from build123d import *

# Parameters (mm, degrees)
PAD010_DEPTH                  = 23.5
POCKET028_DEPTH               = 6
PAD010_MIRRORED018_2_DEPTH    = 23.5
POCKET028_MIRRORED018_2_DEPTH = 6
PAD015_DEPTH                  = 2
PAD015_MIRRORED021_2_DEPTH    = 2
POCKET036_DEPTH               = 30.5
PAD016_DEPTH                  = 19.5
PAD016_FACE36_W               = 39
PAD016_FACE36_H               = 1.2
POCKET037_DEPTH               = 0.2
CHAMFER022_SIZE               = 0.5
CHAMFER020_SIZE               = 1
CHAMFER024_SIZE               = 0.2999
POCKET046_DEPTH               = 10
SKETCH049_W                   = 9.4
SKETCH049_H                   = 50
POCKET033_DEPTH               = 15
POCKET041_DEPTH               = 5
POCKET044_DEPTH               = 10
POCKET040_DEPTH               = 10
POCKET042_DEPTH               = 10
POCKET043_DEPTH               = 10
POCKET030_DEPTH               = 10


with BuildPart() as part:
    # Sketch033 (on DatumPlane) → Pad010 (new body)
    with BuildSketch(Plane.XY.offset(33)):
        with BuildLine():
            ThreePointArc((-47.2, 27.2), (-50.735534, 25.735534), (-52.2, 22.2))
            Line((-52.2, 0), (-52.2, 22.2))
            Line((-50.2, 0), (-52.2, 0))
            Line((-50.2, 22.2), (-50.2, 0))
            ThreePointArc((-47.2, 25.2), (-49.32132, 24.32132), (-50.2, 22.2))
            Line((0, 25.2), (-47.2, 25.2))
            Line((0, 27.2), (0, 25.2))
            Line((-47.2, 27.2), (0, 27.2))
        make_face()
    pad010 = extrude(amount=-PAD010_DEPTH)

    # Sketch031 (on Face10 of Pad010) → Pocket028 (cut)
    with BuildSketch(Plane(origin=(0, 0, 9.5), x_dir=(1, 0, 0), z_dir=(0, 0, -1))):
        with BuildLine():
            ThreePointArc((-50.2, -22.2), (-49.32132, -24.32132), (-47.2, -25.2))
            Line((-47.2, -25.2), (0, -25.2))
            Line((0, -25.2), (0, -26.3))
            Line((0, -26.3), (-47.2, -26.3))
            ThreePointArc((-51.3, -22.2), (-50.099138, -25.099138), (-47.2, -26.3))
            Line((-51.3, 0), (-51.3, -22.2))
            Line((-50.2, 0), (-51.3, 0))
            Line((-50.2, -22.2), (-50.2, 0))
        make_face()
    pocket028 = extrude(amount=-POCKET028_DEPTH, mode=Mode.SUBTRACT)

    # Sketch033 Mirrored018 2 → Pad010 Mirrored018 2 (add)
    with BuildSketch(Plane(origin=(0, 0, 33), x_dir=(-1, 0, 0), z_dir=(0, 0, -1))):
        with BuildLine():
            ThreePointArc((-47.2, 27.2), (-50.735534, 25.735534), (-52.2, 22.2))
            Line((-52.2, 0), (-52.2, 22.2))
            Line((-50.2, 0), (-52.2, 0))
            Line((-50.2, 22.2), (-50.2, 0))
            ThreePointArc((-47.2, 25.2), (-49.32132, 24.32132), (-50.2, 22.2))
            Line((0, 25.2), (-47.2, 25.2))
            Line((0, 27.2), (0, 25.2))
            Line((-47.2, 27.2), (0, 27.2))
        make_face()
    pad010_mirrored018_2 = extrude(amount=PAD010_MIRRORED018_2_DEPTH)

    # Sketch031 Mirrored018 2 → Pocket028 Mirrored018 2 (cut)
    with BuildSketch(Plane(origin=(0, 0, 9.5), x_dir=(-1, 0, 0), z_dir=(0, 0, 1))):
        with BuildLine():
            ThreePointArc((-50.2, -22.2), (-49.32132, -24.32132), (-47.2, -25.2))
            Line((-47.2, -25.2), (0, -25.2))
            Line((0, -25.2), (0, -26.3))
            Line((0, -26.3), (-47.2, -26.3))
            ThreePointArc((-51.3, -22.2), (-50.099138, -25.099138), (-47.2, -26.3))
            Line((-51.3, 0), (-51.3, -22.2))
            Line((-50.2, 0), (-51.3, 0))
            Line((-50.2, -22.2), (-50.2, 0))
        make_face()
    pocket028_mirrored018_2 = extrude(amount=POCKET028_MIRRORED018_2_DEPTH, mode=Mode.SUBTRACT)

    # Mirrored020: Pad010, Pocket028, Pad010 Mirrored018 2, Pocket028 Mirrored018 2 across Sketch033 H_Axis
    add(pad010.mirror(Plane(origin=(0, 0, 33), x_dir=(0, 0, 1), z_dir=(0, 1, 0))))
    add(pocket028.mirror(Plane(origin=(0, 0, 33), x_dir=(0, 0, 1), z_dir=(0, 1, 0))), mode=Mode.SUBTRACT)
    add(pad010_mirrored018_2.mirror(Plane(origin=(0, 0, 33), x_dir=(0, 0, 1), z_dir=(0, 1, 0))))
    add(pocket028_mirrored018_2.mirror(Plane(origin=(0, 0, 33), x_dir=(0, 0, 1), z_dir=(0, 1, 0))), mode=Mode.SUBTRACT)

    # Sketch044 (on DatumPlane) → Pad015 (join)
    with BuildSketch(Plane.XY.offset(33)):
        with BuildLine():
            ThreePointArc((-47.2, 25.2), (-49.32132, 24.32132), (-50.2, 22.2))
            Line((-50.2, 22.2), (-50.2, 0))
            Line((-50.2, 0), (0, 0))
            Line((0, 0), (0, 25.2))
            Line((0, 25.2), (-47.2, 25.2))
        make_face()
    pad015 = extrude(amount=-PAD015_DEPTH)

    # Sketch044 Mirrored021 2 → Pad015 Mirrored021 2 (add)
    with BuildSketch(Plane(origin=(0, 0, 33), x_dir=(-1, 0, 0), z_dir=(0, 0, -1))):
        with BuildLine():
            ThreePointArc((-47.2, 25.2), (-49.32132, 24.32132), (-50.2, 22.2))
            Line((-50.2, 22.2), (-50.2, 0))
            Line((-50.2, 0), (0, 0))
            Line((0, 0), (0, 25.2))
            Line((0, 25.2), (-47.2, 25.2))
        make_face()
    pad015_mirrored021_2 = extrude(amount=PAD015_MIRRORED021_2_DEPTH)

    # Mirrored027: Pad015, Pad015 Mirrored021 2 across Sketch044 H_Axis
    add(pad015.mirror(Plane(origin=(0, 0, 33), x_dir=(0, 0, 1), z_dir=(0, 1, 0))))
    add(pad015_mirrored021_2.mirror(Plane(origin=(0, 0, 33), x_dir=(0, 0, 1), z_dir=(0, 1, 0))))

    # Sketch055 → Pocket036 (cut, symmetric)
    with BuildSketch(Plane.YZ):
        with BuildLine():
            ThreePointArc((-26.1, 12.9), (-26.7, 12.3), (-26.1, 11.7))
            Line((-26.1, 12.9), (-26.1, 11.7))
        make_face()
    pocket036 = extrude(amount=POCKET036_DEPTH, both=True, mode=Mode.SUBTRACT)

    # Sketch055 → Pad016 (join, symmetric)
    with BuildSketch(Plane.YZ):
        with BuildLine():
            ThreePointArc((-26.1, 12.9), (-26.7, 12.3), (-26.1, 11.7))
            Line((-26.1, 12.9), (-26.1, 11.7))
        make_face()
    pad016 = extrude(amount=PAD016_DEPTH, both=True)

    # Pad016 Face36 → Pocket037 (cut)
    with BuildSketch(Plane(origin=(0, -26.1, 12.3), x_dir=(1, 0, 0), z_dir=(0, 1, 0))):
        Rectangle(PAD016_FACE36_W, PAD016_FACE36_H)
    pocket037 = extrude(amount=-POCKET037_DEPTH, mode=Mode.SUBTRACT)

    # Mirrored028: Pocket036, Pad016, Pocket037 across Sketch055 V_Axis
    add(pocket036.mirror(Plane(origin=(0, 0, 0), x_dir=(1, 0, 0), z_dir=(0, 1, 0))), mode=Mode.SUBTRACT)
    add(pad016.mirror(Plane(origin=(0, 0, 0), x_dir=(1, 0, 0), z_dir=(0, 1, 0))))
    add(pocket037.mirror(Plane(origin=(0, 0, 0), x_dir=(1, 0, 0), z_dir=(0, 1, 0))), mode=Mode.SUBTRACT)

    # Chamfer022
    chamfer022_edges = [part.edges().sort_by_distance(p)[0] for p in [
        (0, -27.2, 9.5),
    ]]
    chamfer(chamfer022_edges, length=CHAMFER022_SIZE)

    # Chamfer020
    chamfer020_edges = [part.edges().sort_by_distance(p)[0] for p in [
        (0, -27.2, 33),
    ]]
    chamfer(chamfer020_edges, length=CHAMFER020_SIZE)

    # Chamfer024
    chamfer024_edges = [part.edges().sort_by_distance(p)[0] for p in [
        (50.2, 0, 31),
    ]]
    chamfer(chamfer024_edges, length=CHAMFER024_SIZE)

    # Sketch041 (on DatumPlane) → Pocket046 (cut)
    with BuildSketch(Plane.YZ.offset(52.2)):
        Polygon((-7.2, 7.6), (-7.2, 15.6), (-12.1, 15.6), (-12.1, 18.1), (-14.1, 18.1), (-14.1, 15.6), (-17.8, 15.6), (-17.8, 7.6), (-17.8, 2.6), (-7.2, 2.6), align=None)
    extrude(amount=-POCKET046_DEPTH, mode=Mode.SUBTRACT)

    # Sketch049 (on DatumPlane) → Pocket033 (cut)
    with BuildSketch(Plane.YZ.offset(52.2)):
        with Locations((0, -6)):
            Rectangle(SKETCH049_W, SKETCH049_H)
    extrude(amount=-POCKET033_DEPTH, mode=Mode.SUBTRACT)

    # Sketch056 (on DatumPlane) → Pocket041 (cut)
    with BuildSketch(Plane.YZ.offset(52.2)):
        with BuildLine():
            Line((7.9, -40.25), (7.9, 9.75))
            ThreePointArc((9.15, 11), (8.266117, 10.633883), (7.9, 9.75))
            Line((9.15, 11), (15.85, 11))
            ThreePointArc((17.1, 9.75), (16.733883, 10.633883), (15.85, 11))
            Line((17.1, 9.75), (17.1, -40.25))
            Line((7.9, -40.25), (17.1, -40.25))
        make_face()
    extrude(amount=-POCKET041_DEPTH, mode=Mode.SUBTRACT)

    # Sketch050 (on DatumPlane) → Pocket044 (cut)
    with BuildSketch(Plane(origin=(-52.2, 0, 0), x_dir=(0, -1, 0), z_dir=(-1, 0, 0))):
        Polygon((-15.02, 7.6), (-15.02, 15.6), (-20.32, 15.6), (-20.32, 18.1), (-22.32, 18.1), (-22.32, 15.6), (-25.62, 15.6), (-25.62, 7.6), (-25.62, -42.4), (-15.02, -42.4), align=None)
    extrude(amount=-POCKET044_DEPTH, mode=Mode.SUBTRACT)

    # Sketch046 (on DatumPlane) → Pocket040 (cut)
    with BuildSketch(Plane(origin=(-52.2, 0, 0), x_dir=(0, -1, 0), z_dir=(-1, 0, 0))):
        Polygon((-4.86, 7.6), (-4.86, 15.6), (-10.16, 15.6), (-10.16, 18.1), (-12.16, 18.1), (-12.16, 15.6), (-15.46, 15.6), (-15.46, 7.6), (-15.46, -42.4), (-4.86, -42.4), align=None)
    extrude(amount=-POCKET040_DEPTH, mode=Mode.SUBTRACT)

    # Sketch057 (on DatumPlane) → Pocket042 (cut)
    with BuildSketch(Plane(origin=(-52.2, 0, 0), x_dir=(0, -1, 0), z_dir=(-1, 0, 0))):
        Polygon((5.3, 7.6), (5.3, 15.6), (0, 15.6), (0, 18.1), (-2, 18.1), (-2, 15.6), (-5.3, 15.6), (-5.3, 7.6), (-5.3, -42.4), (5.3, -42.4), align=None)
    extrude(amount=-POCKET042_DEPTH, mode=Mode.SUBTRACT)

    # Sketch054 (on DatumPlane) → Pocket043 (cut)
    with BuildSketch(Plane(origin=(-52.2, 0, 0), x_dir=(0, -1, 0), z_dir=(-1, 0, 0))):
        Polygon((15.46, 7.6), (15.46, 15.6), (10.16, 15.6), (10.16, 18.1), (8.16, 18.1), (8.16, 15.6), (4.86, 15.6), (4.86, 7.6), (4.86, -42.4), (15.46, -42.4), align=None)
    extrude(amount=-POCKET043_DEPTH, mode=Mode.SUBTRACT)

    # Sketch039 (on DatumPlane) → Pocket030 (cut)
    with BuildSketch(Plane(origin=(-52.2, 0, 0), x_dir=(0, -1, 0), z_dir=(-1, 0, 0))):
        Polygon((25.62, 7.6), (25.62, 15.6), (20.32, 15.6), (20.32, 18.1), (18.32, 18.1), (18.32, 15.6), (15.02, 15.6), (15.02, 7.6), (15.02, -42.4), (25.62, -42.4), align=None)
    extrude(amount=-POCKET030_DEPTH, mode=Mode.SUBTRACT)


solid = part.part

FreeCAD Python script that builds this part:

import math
import FreeCAD as App
import Part
import Sketcher

V = App.Vector
Q = App.Units.Quantity


def edges_at(feature, points):
    """Names of the edges that pass closest to the given points."""
    edges = feature.Shape.Edges
    near = lambda p: min(range(len(edges)), key=lambda i: edges[i].distToShape(Part.Vertex(*p))[0])
    return sorted({f"Edge{near(p) + 1}" for p in points})


def add_polygon(sketch, points):
    """Adds a closed chain of lines whose ends are joined by coincident constraints."""
    first, n = sketch.GeometryCount, len(points)
    for a, b in zip(points, points[1:] + points[:1]):
        sketch.addGeometry(Part.LineSegment(App.Vector(*a, 0), App.Vector(*b, 0)), False)
    for i in range(n):
        sketch.addConstraint(Sketcher.Constraint("Coincident", first + i, 2, first + (i + 1) % n, 1))

doc = App.newDocument("Part")
body = doc.addObject("PartDesign::Body", "Body")

sketch1 = doc.addObject("Sketcher::SketchObject", "Sketch")
body.addObject(sketch1)
sketch1.AttachmentSupport = (doc.XY_Plane, [""])
sketch1.MapMode = "FlatFace"
sketch1.AttachmentOffset = App.Placement(V(0, 0, 33), App.Rotation())
sketch1.addGeometry(Part.ArcOfCircle(Part.Circle(V(-47.2, 22.2, 0), V(0, 0, 1), 5), math.radians(90), math.radians(180)), False)
sketch1.addGeometry(Part.LineSegment(V(-52.2, 22.2, 0), V(-52.2, 0, 0)), False)
sketch1.addGeometry(Part.LineSegment(V(-52.2, 0, 0), V(-50.2, 0, 0)), False)
sketch1.addGeometry(Part.LineSegment(V(-50.2, 0, 0), V(-50.2, 22.2, 0)), False)
sketch1.addGeometry(Part.ArcOfCircle(Part.Circle(V(-47.2, 22.2, 0), V(0, 0, 1), 3), math.radians(90), math.radians(180)), False)
sketch1.addGeometry(Part.LineSegment(V(-47.2, 25.2, 0), V(0, 25.2, 0)), False)
sketch1.addGeometry(Part.LineSegment(V(0, 25.2, 0), V(0, 27.2, 0)), False)
sketch1.addGeometry(Part.LineSegment(V(0, 27.2, 0), V(-47.2, 27.2, 0)), False)
sketch1.addConstraint(Sketcher.Constraint("Tangent", 0, 2, 1, 1))
sketch1.addConstraint(Sketcher.Constraint("Coincident", 1, 2, 2, 1))
sketch1.addConstraint(Sketcher.Constraint("Coincident", 2, 2, 3, 1))
sketch1.addConstraint(Sketcher.Constraint("Tangent", 3, 2, 4, 2))
sketch1.addConstraint(Sketcher.Constraint("Tangent", 4, 1, 5, 1))
sketch1.addConstraint(Sketcher.Constraint("Coincident", 5, 2, 6, 1))
sketch1.addConstraint(Sketcher.Constraint("Coincident", 6, 2, 7, 1))
sketch1.addConstraint(Sketcher.Constraint("Tangent", 7, 2, 0, 1))
sketch1.addConstraint(Sketcher.Constraint("Vertical", 1))
sketch1.addConstraint(Sketcher.Constraint("Horizontal", 2))
sketch1.addConstraint(Sketcher.Constraint("Vertical", 3))
sketch1.addConstraint(Sketcher.Constraint("Horizontal", 5))
sketch1.addConstraint(Sketcher.Constraint("Vertical", 6))
sketch1.addConstraint(Sketcher.Constraint("Horizontal", 7))
sketch1.addConstraint(Sketcher.Constraint("Coincident", 4, 3, 0, 3))
sketch1.addConstraint(Sketcher.Constraint("PointOnObject", 1, 2, -1))
sketch1.addConstraint(Sketcher.Constraint("PointOnObject", 5, 2, -2))
sketch1.addConstraint(Sketcher.Constraint("Radius", 0, Q("5 mm")))
sketch1.addConstraint(Sketcher.Constraint("Radius", 4, Q("3.000001 mm")))
sketch1.addConstraint(Sketcher.Constraint("DistanceX", 5, 1, 5, 2, Q("47.2 mm")))
sketch1.addConstraint(Sketcher.Constraint("DistanceY", 1, 2, 1, 1, Q("22.2 mm")))
pad1 = doc.addObject("PartDesign::Pad", "Pad")
body.addObject(pad1)
pad1.Profile = sketch1
pad1.Length = 23.5
pad1.Reversed = True

sketch2 = doc.addObject("Sketcher::SketchObject", "Sketch001")
body.addObject(sketch2)
sketch2.AttachmentSupport = (doc.XY_Plane, [""])
sketch2.MapMode = "FlatFace"
sketch2.AttachmentOffset = App.Placement(V(0, 0, 9.5), App.Rotation())
sketch2.addGeometry(Part.ArcOfCircle(Part.Circle(V(-47.2, 22.2, 0), V(0, 0, 1), 3), math.radians(90), math.radians(180)), False)
sketch2.addGeometry(Part.LineSegment(V(-50.2, 22.2, 0), V(-50.2, 0, 0)), False)
sketch2.addGeometry(Part.LineSegment(V(-50.2, 0, 0), V(-51.3, 0, 0)), False)
sketch2.addGeometry(Part.LineSegment(V(-51.3, 0, 0), V(-51.3, 22.2, 0)), False)
sketch2.addGeometry(Part.ArcOfCircle(Part.Circle(V(-47.2, 22.2, 0), V(0, 0, 1), 4.1), math.radians(90), math.radians(180)), False)
sketch2.addGeometry(Part.LineSegment(V(-47.2, 26.3, 0), V(0, 26.3, 0)), False)
sketch2.addGeometry(Part.LineSegment(V(0, 26.3, 0), V(0, 25.2, 0)), False)
sketch2.addGeometry(Part.LineSegment(V(0, 25.2, 0), V(-47.2, 25.2, 0)), False)
sketch2.addConstraint(Sketcher.Constraint("Tangent", 0, 2, 1, 1))
sketch2.addConstraint(Sketcher.Constraint("Coincident", 1, 2, 2, 1))
sketch2.addConstraint(Sketcher.Constraint("Coincident", 2, 2, 3, 1))
sketch2.addConstraint(Sketcher.Constraint("Tangent", 3, 2, 4, 2))
sketch2.addConstraint(Sketcher.Constraint("Tangent", 4, 1, 5, 1))
sketch2.addConstraint(Sketcher.Constraint("Coincident", 5, 2, 6, 1))
sketch2.addConstraint(Sketcher.Constraint("Coincident", 6, 2, 7, 1))
sketch2.addConstraint(Sketcher.Constraint("Tangent", 7, 2, 0, 1))
sketch2.addConstraint(Sketcher.Constraint("Vertical", 1))
sketch2.addConstraint(Sketcher.Constraint("Horizontal", 2))
sketch2.addConstraint(Sketcher.Constraint("Vertical", 3))
sketch2.addConstraint(Sketcher.Constraint("Horizontal", 5))
sketch2.addConstraint(Sketcher.Constraint("Vertical", 6))
sketch2.addConstraint(Sketcher.Constraint("Horizontal", 7))
sketch2.addConstraint(Sketcher.Constraint("Coincident", 4, 3, 0, 3))
sketch2.addConstraint(Sketcher.Constraint("PointOnObject", 1, 2, -1))
sketch2.addConstraint(Sketcher.Constraint("PointOnObject", 5, 2, -2))
sketch2.addConstraint(Sketcher.Constraint("Radius", 0, Q("3.000001 mm")))
sketch2.addConstraint(Sketcher.Constraint("Radius", 4, Q("4.099999 mm")))
sketch2.addConstraint(Sketcher.Constraint("DistanceX", 5, 1, 5, 2, Q("47.2 mm")))
sketch2.addConstraint(Sketcher.Constraint("DistanceY", 1, 2, 1, 1, Q("22.2 mm")))
pocket1 = doc.addObject("PartDesign::Pocket", "Pocket")
body.addObject(pocket1)
pocket1.Profile = sketch2
pocket1.Length = 6
pocket1.Reversed = True

sketch3 = doc.addObject("Sketcher::SketchObject", "Sketch002")
body.addObject(sketch3)
sketch3.AttachmentSupport = (doc.XY_Plane, [""])
sketch3.MapMode = "FlatFace"
sketch3.AttachmentOffset = App.Placement(V(0, 0, 33), App.Rotation())
sketch3.addGeometry(Part.ArcOfCircle(Part.Circle(V(47.2, 22.2, 0), V(0, 0, 1), 5), math.radians(0), math.radians(90)), False)
sketch3.addGeometry(Part.LineSegment(V(52.2, 22.2, 0), V(52.2, 0, 0)), False)
sketch3.addGeometry(Part.LineSegment(V(52.2, 0, 0), V(50.2, 0, 0)), False)
sketch3.addGeometry(Part.LineSegment(V(50.2, 0, 0), V(50.2, 22.2, 0)), False)
sketch3.addGeometry(Part.ArcOfCircle(Part.Circle(V(47.2, 22.2, 0), V(0, 0, 1), 3), math.radians(0), math.radians(90)), False)
sketch3.addGeometry(Part.LineSegment(V(47.2, 25.2, 0), V(0, 25.2, 0)), False)
sketch3.addGeometry(Part.LineSegment(V(0, 25.2, 0), V(0, 27.2, 0)), False)
sketch3.addGeometry(Part.LineSegment(V(0, 27.2, 0), V(47.2, 27.2, 0)), False)
sketch3.addConstraint(Sketcher.Constraint("Tangent", 0, 1, 1, 1))
sketch3.addConstraint(Sketcher.Constraint("Coincident", 1, 2, 2, 1))
sketch3.addConstraint(Sketcher.Constraint("Coincident", 2, 2, 3, 1))
sketch3.addConstraint(Sketcher.Constraint("Tangent", 3, 2, 4, 1))
sketch3.addConstraint(Sketcher.Constraint("Tangent", 4, 2, 5, 1))
sketch3.addConstraint(Sketcher.Constraint("Coincident", 5, 2, 6, 1))
sketch3.addConstraint(Sketcher.Constraint("Coincident", 6, 2, 7, 1))
sketch3.addConstraint(Sketcher.Constraint("Tangent", 7, 2, 0, 2))
sketch3.addConstraint(Sketcher.Constraint("Vertical", 1))
sketch3.addConstraint(Sketcher.Constraint("Horizontal", 2))
sketch3.addConstraint(Sketcher.Constraint("Vertical", 3))
sketch3.addConstraint(Sketcher.Constraint("Horizontal", 5))
sketch3.addConstraint(Sketcher.Constraint("Vertical", 6))
sketch3.addConstraint(Sketcher.Constraint("Horizontal", 7))
sketch3.addConstraint(Sketcher.Constraint("Coincident", 4, 3, 0, 3))
sketch3.addConstraint(Sketcher.Constraint("PointOnObject", 1, 2, -1))
sketch3.addConstraint(Sketcher.Constraint("PointOnObject", 5, 2, -2))
sketch3.addConstraint(Sketcher.Constraint("Radius", 0, Q("5 mm")))
sketch3.addConstraint(Sketcher.Constraint("Radius", 4, Q("3.000001 mm")))
sketch3.addConstraint(Sketcher.Constraint("DistanceX", 5, 2, 5, 1, Q("47.2 mm")))
sketch3.addConstraint(Sketcher.Constraint("DistanceY", 1, 2, 1, 1, Q("22.2 mm")))
pad2 = doc.addObject("PartDesign::Pad", "Pad001")
body.addObject(pad2)
pad2.Profile = sketch3
pad2.Length = 23.5
pad2.Reversed = True

sketch4 = doc.addObject("Sketcher::SketchObject", "Sketch003")
body.addObject(sketch4)
sketch4.AttachmentSupport = (doc.XY_Plane, [""])
sketch4.MapMode = "FlatFace"
sketch4.AttachmentOffset = App.Placement(V(0, 0, 9.5), App.Rotation())
sketch4.addGeometry(Part.ArcOfCircle(Part.Circle(V(47.2, 22.2, 0), V(0, 0, 1), 3), math.radians(0), math.radians(90)), False)
sketch4.addGeometry(Part.LineSegment(V(50.2, 22.2, 0), V(50.2, 0, 0)), False)
sketch4.addGeometry(Part.LineSegment(V(50.2, 0, 0), V(51.3, 0, 0)), False)
sketch4.addGeometry(Part.LineSegment(V(51.3, 0, 0), V(51.3, 22.2, 0)), False)
sketch4.addGeometry(Part.ArcOfCircle(Part.Circle(V(47.2, 22.2, 0), V(0, 0, 1), 4.1), math.radians(0), math.radians(90)), False)
sketch4.addGeometry(Part.LineSegment(V(47.2, 26.3, 0), V(0, 26.3, 0)), False)
sketch4.addGeometry(Part.LineSegment(V(0, 26.3, 0), V(0, 25.2, 0)), False)
sketch4.addGeometry(Part.LineSegment(V(0, 25.2, 0), V(47.2, 25.2, 0)), False)
sketch4.addConstraint(Sketcher.Constraint("Tangent", 0, 1, 1, 1))
sketch4.addConstraint(Sketcher.Constraint("Coincident", 1, 2, 2, 1))
sketch4.addConstraint(Sketcher.Constraint("Coincident", 2, 2, 3, 1))
sketch4.addConstraint(Sketcher.Constraint("Tangent", 3, 2, 4, 1))
sketch4.addConstraint(Sketcher.Constraint("Tangent", 4, 2, 5, 1))
sketch4.addConstraint(Sketcher.Constraint("Coincident", 5, 2, 6, 1))
sketch4.addConstraint(Sketcher.Constraint("Coincident", 6, 2, 7, 1))
sketch4.addConstraint(Sketcher.Constraint("Tangent", 7, 2, 0, 2))
sketch4.addConstraint(Sketcher.Constraint("Vertical", 1))
sketch4.addConstraint(Sketcher.Constraint("Horizontal", 2))
sketch4.addConstraint(Sketcher.Constraint("Vertical", 3))
sketch4.addConstraint(Sketcher.Constraint("Horizontal", 5))
sketch4.addConstraint(Sketcher.Constraint("Vertical", 6))
sketch4.addConstraint(Sketcher.Constraint("Horizontal", 7))
sketch4.addConstraint(Sketcher.Constraint("Coincident", 4, 3, 0, 3))
sketch4.addConstraint(Sketcher.Constraint("PointOnObject", 1, 2, -1))
sketch4.addConstraint(Sketcher.Constraint("PointOnObject", 5, 2, -2))
sketch4.addConstraint(Sketcher.Constraint("Radius", 0, Q("3.000001 mm")))
sketch4.addConstraint(Sketcher.Constraint("Radius", 4, Q("4.099999 mm")))
sketch4.addConstraint(Sketcher.Constraint("DistanceX", 5, 2, 5, 1, Q("47.2 mm")))
sketch4.addConstraint(Sketcher.Constraint("DistanceY", 1, 2, 1, 1, Q("22.2 mm")))
pocket2 = doc.addObject("PartDesign::Pocket", "Pocket001")
body.addObject(pocket2)
pocket2.Profile = sketch4
pocket2.Length = 6
pocket2.Reversed = True
doc.recompute()

mirrored = doc.addObject("PartDesign::Mirrored", "Mirrored")
body.addObject(mirrored)
mirrored.Originals = [pad1, pocket1, pad2, pocket2]
mirrored.MirrorPlane = (doc.XZ_Plane, [""])
body.Tip = mirrored

sketch5 = doc.addObject("Sketcher::SketchObject", "Sketch004")
body.addObject(sketch5)
sketch5.AttachmentSupport = (doc.XY_Plane, [""])
sketch5.MapMode = "FlatFace"
sketch5.AttachmentOffset = App.Placement(V(0, 0, 33), App.Rotation())
sketch5.addGeometry(Part.ArcOfCircle(Part.Circle(V(-47.2, 22.2, 0), V(0, 0, 1), 3), math.radians(90), math.radians(180)), False)
sketch5.addGeometry(Part.LineSegment(V(-50.2, 22.2, 0), V(-50.2, 0, 0)), False)
sketch5.addGeometry(Part.LineSegment(V(-50.2, 0, 0), V(0, 0, 0)), False)
sketch5.addGeometry(Part.LineSegment(V(0, 0, 0), V(0, 25.2, 0)), False)
sketch5.addGeometry(Part.LineSegment(V(0, 25.2, 0), V(-47.2, 25.2, 0)), False)
sketch5.addConstraint(Sketcher.Constraint("Tangent", 0, 2, 1, 1))
sketch5.addConstraint(Sketcher.Constraint("Coincident", 1, 2, 2, 1))
sketch5.addConstraint(Sketcher.Constraint("Coincident", 2, 2, 3, 1))
sketch5.addConstraint(Sketcher.Constraint("Coincident", 3, 2, 4, 1))
sketch5.addConstraint(Sketcher.Constraint("Tangent", 4, 2, 0, 1))
sketch5.addConstraint(Sketcher.Constraint("Vertical", 1))
sketch5.addConstraint(Sketcher.Constraint("Horizontal", 2))
sketch5.addConstraint(Sketcher.Constraint("Vertical", 3))
sketch5.addConstraint(Sketcher.Constraint("Horizontal", 4))
sketch5.addConstraint(Sketcher.Constraint("Coincident", 2, 2, -1, 1))
sketch5.addConstraint(Sketcher.Constraint("Radius", 0, Q("3.000001 mm")))
sketch5.addConstraint(Sketcher.Constraint("DistanceX", 2, 1, 2, 2, Q("50.2 mm")))
sketch5.addConstraint(Sketcher.Constraint("DistanceY", 1, 2, 1, 1, Q("22.2 mm")))
pad3 = doc.addObject("PartDesign::Pad", "Pad002")
body.addObject(pad3)
pad3.Profile = sketch5
pad3.Length = 2
pad3.Reversed = True

sketch6 = doc.addObject("Sketcher::SketchObject", "Sketch005")
body.addObject(sketch6)
sketch6.AttachmentSupport = (doc.XY_Plane, [""])
sketch6.MapMode = "FlatFace"
sketch6.AttachmentOffset = App.Placement(V(0, 0, 33), App.Rotation())
sketch6.addGeometry(Part.ArcOfCircle(Part.Circle(V(47.2, 22.2, 0), V(0, 0, 1), 3), math.radians(0), math.radians(90)), False)
sketch6.addGeometry(Part.LineSegment(V(50.2, 22.2, 0), V(50.2, 0, 0)), False)
sketch6.addGeometry(Part.LineSegment(V(50.2, 0, 0), V(0, 0, 0)), False)
sketch6.addGeometry(Part.LineSegment(V(0, 0, 0), V(0, 25.2, 0)), False)
sketch6.addGeometry(Part.LineSegment(V(0, 25.2, 0), V(47.2, 25.2, 0)), False)
sketch6.addConstraint(Sketcher.Constraint("Tangent", 0, 1, 1, 1))
sketch6.addConstraint(Sketcher.Constraint("Coincident", 1, 2, 2, 1))
sketch6.addConstraint(Sketcher.Constraint("Coincident", 2, 2, 3, 1))
sketch6.addConstraint(Sketcher.Constraint("Coincident", 3, 2, 4, 1))
sketch6.addConstraint(Sketcher.Constraint("Tangent", 4, 2, 0, 2))
sketch6.addConstraint(Sketcher.Constraint("Vertical", 1))
sketch6.addConstraint(Sketcher.Constraint("Horizontal", 2))
sketch6.addConstraint(Sketcher.Constraint("Vertical", 3))
sketch6.addConstraint(Sketcher.Constraint("Horizontal", 4))
sketch6.addConstraint(Sketcher.Constraint("Coincident", 2, 2, -1, 1))
sketch6.addConstraint(Sketcher.Constraint("Radius", 0, Q("3.000001 mm")))
sketch6.addConstraint(Sketcher.Constraint("DistanceX", 2, 2, 2, 1, Q("50.2 mm")))
sketch6.addConstraint(Sketcher.Constraint("DistanceY", 1, 2, 1, 1, Q("22.2 mm")))
pad4 = doc.addObject("PartDesign::Pad", "Pad003")
body.addObject(pad4)
pad4.Profile = sketch6
pad4.Length = 2
pad4.Reversed = True
doc.recompute()

mirrored2 = doc.addObject("PartDesign::Mirrored", "Mirrored001")
body.addObject(mirrored2)
mirrored2.Originals = [pad3, pad4]
mirrored2.MirrorPlane = (doc.XZ_Plane, [""])
body.Tip = mirrored2

sketch7 = doc.addObject("Sketcher::SketchObject", "Sketch006")
body.addObject(sketch7)
sketch7.AttachmentSupport = (doc.YZ_Plane, [""])
sketch7.MapMode = "FlatFace"
sketch7.addGeometry(Part.ArcOfCircle(Part.Circle(V(-26.1, 12.3, 0), V(0, 0, 1), 0.6), math.radians(90), math.radians(270)), False)
sketch7.addGeometry(Part.LineSegment(V(-26.1, 11.7, 0), V(-26.1, 12.9, 0)), False)
sketch7.addConstraint(Sketcher.Constraint("Coincident", 0, 1, 1, 2))
sketch7.addConstraint(Sketcher.Constraint("Coincident", 1, 1, 0, 2))
sketch7.addConstraint(Sketcher.Constraint("Vertical", 1))
sketch7.addConstraint(Sketcher.Constraint("Radius", 0, Q("0.6 mm")))
sketch7.addConstraint(Sketcher.Constraint("DistanceX", 0, 3, -1, 1, Q("26.1 mm")))
sketch7.addConstraint(Sketcher.Constraint("DistanceY", -1, 1, 0, 3, Q("12.3 mm")))
sketch7.addConstraint(Sketcher.Constraint("DistanceX", 0, 1, -1, 1, Q("26.1 mm")))
pocket3 = doc.addObject("PartDesign::Pocket", "Pocket002")
body.addObject(pocket3)
pocket3.Profile = sketch7
pocket3.Length = 61
pocket3.Midplane = True

sketch8 = doc.addObject("Sketcher::SketchObject", "Sketch007")
body.addObject(sketch8)
sketch8.AttachmentSupport = (doc.YZ_Plane, [""])
sketch8.MapMode = "FlatFace"
sketch8.addGeometry(Part.ArcOfCircle(Part.Circle(V(-26.1, 12.3, 0), V(0, 0, 1), 0.6), math.radians(90), math.radians(270)), False)
sketch8.addGeometry(Part.LineSegment(V(-26.1, 11.7, 0), V(-26.1, 12.9, 0)), False)
sketch8.addConstraint(Sketcher.Constraint("Coincident", 0, 1, 1, 2))
sketch8.addConstraint(Sketcher.Constraint("Coincident", 1, 1, 0, 2))
sketch8.addConstraint(Sketcher.Constraint("Vertical", 1))
sketch8.addConstraint(Sketcher.Constraint("Radius", 0, Q("0.6 mm")))
sketch8.addConstraint(Sketcher.Constraint("DistanceX", 0, 3, -1, 1, Q("26.1 mm")))
sketch8.addConstraint(Sketcher.Constraint("DistanceY", -1, 1, 0, 3, Q("12.3 mm")))
sketch8.addConstraint(Sketcher.Constraint("DistanceX", 0, 1, -1, 1, Q("26.1 mm")))
pad5 = doc.addObject("PartDesign::Pad", "Pad004")
body.addObject(pad5)
pad5.Profile = sketch8
pad5.Length = 39
pad5.Midplane = True

sketch9 = doc.addObject("Sketcher::SketchObject", "Sketch008")
body.addObject(sketch9)
sketch9.AttachmentSupport = (doc.XZ_Plane, [""])
sketch9.MapMode = "FlatFace"
sketch9.AttachmentOffset = App.Placement(V(0, 0, 26.1), App.Rotation())
add_polygon(sketch9, [(-19.5, 11.7), (-19.5, 12.9), (19.5, 12.9), (19.5, 11.7)])
sketch9.addConstraint(Sketcher.Constraint("Vertical", 0))
sketch9.addConstraint(Sketcher.Constraint("Horizontal", 1))
sketch9.addConstraint(Sketcher.Constraint("Vertical", 2))
sketch9.addConstraint(Sketcher.Constraint("Horizontal", 3))
sketch9.addConstraint(Sketcher.Constraint("DistanceX", 1, 1, 1, 2, Q("39 mm")))
sketch9.addConstraint(Sketcher.Constraint("DistanceY", 0, 1, 0, 2, Q("1.2 mm")))
sketch9.addConstraint(Sketcher.Constraint("DistanceX", 0, 2, -1, 1, Q("19.5 mm")))
sketch9.addConstraint(Sketcher.Constraint("DistanceY", -1, 1, 0, 2, Q("12.9 mm")))
pocket4 = doc.addObject("PartDesign::Pocket", "Pocket003")
body.addObject(pocket4)
pocket4.Profile = sketch9
pocket4.Length = 0.2
pocket4.Reversed = True
doc.recompute()

mirrored3 = doc.addObject("PartDesign::Mirrored", "Mirrored002")
body.addObject(mirrored3)
mirrored3.Originals = [pocket3, pad5, pocket4]
mirrored3.MirrorPlane = (doc.XZ_Plane, [""])
body.Tip = mirrored3
doc.recompute()

chamfer = doc.addObject("PartDesign::Chamfer", "Chamfer")
body.addObject(chamfer)
chamfer.Base = (mirrored3, edges_at(mirrored3, [(0, -27.2, 9.5)]))
chamfer.Size = 0.5
doc.recompute()

chamfer2 = doc.addObject("PartDesign::Chamfer", "Chamfer001")
body.addObject(chamfer2)
chamfer2.Base = (chamfer, edges_at(chamfer, [(0, -27.2, 33)]))
chamfer2.Size = 1
doc.recompute()

chamfer3 = doc.addObject("PartDesign::Chamfer", "Chamfer002")
body.addObject(chamfer3)
chamfer3.Base = (chamfer2, edges_at(chamfer2, [(50.2, 0, 31)]))
chamfer3.Size = 0.2999

sketch10 = doc.addObject("Sketcher::SketchObject", "Sketch009")
body.addObject(sketch10)
sketch10.AttachmentSupport = (doc.YZ_Plane, [""])
sketch10.MapMode = "FlatFace"
sketch10.AttachmentOffset = App.Placement(V(0, 0, 52.2), App.Rotation())
add_polygon(sketch10, [(-7.2, 15.6), (-12.1, 15.6), (-12.1, 18.1), (-14.1, 18.1), (-14.1, 15.6), (-17.8, 15.6), (-17.8, 2.6), (-7.2, 2.6)])
sketch10.addConstraint(Sketcher.Constraint("Horizontal", 0))
sketch10.addConstraint(Sketcher.Constraint("Vertical", 1))
sketch10.addConstraint(Sketcher.Constraint("Horizontal", 2))
sketch10.addConstraint(Sketcher.Constraint("Vertical", 3))
sketch10.addConstraint(Sketcher.Constraint("Horizontal", 4))
sketch10.addConstraint(Sketcher.Constraint("Vertical", 5))
sketch10.addConstraint(Sketcher.Constraint("Horizontal", 6))
sketch10.addConstraint(Sketcher.Constraint("Vertical", 7))
sketch10.addConstraint(Sketcher.Constraint("Horizontal", 0, 2, 3, 2))
sketch10.addConstraint(Sketcher.Constraint("DistanceX", 2, 2, 2, 1, Q("2 mm")))
sketch10.addConstraint(Sketcher.Constraint("DistanceY", 5, 2, 5, 1, Q("13 mm")))
sketch10.addConstraint(Sketcher.Constraint("DistanceX", 0, 2, 0, 1, Q("4.9 mm")))
sketch10.addConstraint(Sketcher.Constraint("DistanceX", 4, 2, 4, 1, Q("3.7 mm")))
sketch10.addConstraint(Sketcher.Constraint("DistanceY", 1, 1, 1, 2, Q("2.5 mm")))
sketch10.addConstraint(Sketcher.Constraint("DistanceX", 0, 2, -1, 1, Q("12.1 mm")))
sketch10.addConstraint(Sketcher.Constraint("DistanceY", -1, 1, 0, 2, Q("15.6 mm")))
pocket5 = doc.addObject("PartDesign::Pocket", "Pocket004")
body.addObject(pocket5)
pocket5.Profile = sketch10
pocket5.Length = 10

sketch11 = doc.addObject("Sketcher::SketchObject", "Sketch010")
body.addObject(sketch11)
sketch11.AttachmentSupport = (doc.YZ_Plane, [""])
sketch11.MapMode = "FlatFace"
sketch11.AttachmentOffset = App.Placement(V(0, 0, 52.2), App.Rotation())
add_polygon(sketch11, [(-5, 19), (-5, -31), (5, -31), (5, 19)])
sketch11.addConstraint(Sketcher.Constraint("Vertical", 0))
sketch11.addConstraint(Sketcher.Constraint("Horizontal", 1))
sketch11.addConstraint(Sketcher.Constraint("Vertical", 2))
sketch11.addConstraint(Sketcher.Constraint("Horizontal", 3))
sketch11.addConstraint(Sketcher.Constraint("DistanceY", 0, 2, 0, 1, Q("50 mm")))
sketch11.addConstraint(Sketcher.Constraint("DistanceX", 1, 1, 1, 2, Q("9.4 mm")))
sketch11.addConstraint(Sketcher.Constraint("DistanceY", 0, 2, -1, 1, Q("31 mm")))
sketch11.addConstraint(Sketcher.Constraint("DistanceX", 0, 2, -1, 1, Q("4.7 mm")))
pocket6 = doc.addObject("PartDesign::Pocket", "Pocket005")
body.addObject(pocket6)
pocket6.Profile = sketch11
pocket6.Length = 15

sketch12 = doc.addObject("Sketcher::SketchObject", "Sketch011")
body.addObject(sketch12)
sketch12.AttachmentSupport = (doc.YZ_Plane, [""])
sketch12.MapMode = "FlatFace"
sketch12.AttachmentOffset = App.Placement(V(0, 0, 52.2), App.Rotation())
sketch12.addGeometry(Part.LineSegment(V(7.9, 9.8, 0), V(7.9, -40.2, 0)), False)
sketch12.addGeometry(Part.LineSegment(V(7.9, -40.2, 0), V(17.1, -40.2, 0)), False)
sketch12.addGeometry(Part.LineSegment(V(17.1, -40.2, 0), V(17.1, 9.8, 0)), False)
sketch12.addGeometry(Part.ArcOfCircle(Part.Circle(V(15.8, 9.7, 0), V(0, 0, 1), 1.3), math.radians(0), math.radians(90)), False)
sketch12.addGeometry(Part.LineSegment(V(15.8, 11, 0), V(9.2, 11, 0)), False)
sketch12.addGeometry(Part.ArcOfCircle(Part.Circle(V(9.2, 9.7, 0), V(0, 0, 1), 1.3), math.radians(90), math.radians(180)), False)
sketch12.addConstraint(Sketcher.Constraint("Coincident", 0, 2, 1, 1))
sketch12.addConstraint(Sketcher.Constraint("Coincident", 1, 2, 2, 1))
sketch12.addConstraint(Sketcher.Constraint("Tangent", 2, 2, 3, 1))
sketch12.addConstraint(Sketcher.Constraint("Tangent", 3, 2, 4, 1))
sketch12.addConstraint(Sketcher.Constraint("Tangent", 4, 2, 5, 1))
sketch12.addConstraint(Sketcher.Constraint("Tangent", 5, 2, 0, 1))
sketch12.addConstraint(Sketcher.Constraint("Vertical", 0))
sketch12.addConstraint(Sketcher.Constraint("Horizontal", 1))
sketch12.addConstraint(Sketcher.Constraint("Vertical", 2))
sketch12.addConstraint(Sketcher.Constraint("Horizontal", 4))
sketch12.addConstraint(Sketcher.Constraint("Equal", 3, 5))
sketch12.addConstraint(Sketcher.Constraint("DistanceY", 0, 2, 0, 1, Q("50 mm")))
sketch12.addConstraint(Sketcher.Constraint("Radius", 3, Q("1.250002 mm")))
sketch12.addConstraint(Sketcher.Constraint("DistanceX", 1, 1, 1, 2, Q("9.2 mm")))
sketch12.addConstraint(Sketcher.Constraint("DistanceY", -1, 1, 3, 2, Q("11 mm")))
sketch12.addConstraint(Sketcher.Constraint("DistanceX", -1, 1, 0, 2, Q("7.9 mm")))
pocket7 = doc.addObject("PartDesign::Pocket", "Pocket006")
body.addObject(pocket7)
pocket7.Profile = sketch12
pocket7.Length = 5

sketch13 = doc.addObject("Sketcher::SketchObject", "Sketch012")
body.addObject(sketch13)
sketch13.AttachmentSupport = (doc.YZ_Plane, [""])
sketch13.MapMode = "FlatFace"
sketch13.AttachmentOffset = App.Placement(V(0, 0, -52.2), App.Rotation())
add_polygon(sketch13, [(15, 15.6), (20.3, 15.6), (20.3, 18.1), (22.3, 18.1), (22.3, 15.6), (25.6, 15.6), (25.6, -42.4), (15, -42.4)])
sketch13.addConstraint(Sketcher.Constraint("Horizontal", 0))
sketch13.addConstraint(Sketcher.Constraint("Vertical", 1))
sketch13.addConstraint(Sketcher.Constraint("Horizontal", 2))
sketch13.addConstraint(Sketcher.Constraint("Vertical", 3))
sketch13.addConstraint(Sketcher.Constraint("Horizontal", 4))
sketch13.addConstraint(Sketcher.Constraint("Vertical", 5))
sketch13.addConstraint(Sketcher.Constraint("Horizontal", 6))
sketch13.addConstraint(Sketcher.Constraint("Vertical", 7))
sketch13.addConstraint(Sketcher.Constraint("Horizontal", 0, 2, 3, 2))
sketch13.addConstraint(Sketcher.Constraint("DistanceX", 2, 1, 2, 2, Q("2 mm")))
sketch13.addConstraint(Sketcher.Constraint("DistanceY", 5, 2, 5, 1, Q("58 mm")))
sketch13.addConstraint(Sketcher.Constraint("DistanceX", 0, 1, 0, 2, Q("5.3 mm")))
sketch13.addConstraint(Sketcher.Constraint("DistanceX", 4, 1, 4, 2, Q("3.3 mm")))
sketch13.addConstraint(Sketcher.Constraint("DistanceY", 1, 1, 1, 2, Q("2.5 mm")))
sketch13.addConstraint(Sketcher.Constraint("DistanceY", -1, 1, 0, 2, Q("15.6 mm")))
sketch13.addConstraint(Sketcher.Constraint("DistanceX", -1, 1, 0, 2, Q("20.32 mm")))
pocket8 = doc.addObject("PartDesign::Pocket", "Pocket007")
body.addObject(pocket8)
pocket8.Profile = sketch13
pocket8.Length = 10
pocket8.Reversed = True

sketch14 = doc.addObject("Sketcher::SketchObject", "Sketch013")
body.addObject(sketch14)
sketch14.AttachmentSupport = (doc.YZ_Plane, [""])
sketch14.MapMode = "FlatFace"
sketch14.AttachmentOffset = App.Placement(V(0, 0, -52.2), App.Rotation())
add_polygon(sketch14, [(4.9, 15.6), (10.2, 15.6), (10.2, 18.1), (12.2, 18.1), (12.2, 15.6), (15.5, 15.6), (15.5, -42.4), (4.9, -42.4)])
sketch14.addConstraint(Sketcher.Constraint("Horizontal", 0))
sketch14.addConstraint(Sketcher.Constraint("Vertical", 1))
sketch14.addConstraint(Sketcher.Constraint("Horizontal", 2))
sketch14.addConstraint(Sketcher.Constraint("Vertical", 3))
sketch14.addConstraint(Sketcher.Constraint("Horizontal", 4))
sketch14.addConstraint(Sketcher.Constraint("Vertical", 5))
sketch14.addConstraint(Sketcher.Constraint("Horizontal", 6))
sketch14.addConstraint(Sketcher.Constraint("Vertical", 7))
sketch14.addConstraint(Sketcher.Constraint("Horizontal", 0, 2, 3, 2))
sketch14.addConstraint(Sketcher.Constraint("DistanceX", 2, 1, 2, 2, Q("2 mm")))
sketch14.addConstraint(Sketcher.Constraint("DistanceY", 5, 2, 5, 1, Q("58 mm")))
sketch14.addConstraint(Sketcher.Constraint("DistanceX", 0, 1, 0, 2, Q("5.3 mm")))
sketch14.addConstraint(Sketcher.Constraint("DistanceX", 4, 1, 4, 2, Q("3.3 mm")))
sketch14.addConstraint(Sketcher.Constraint("DistanceY", 1, 1, 1, 2, Q("2.5 mm")))
sketch14.addConstraint(Sketcher.Constraint("DistanceY", -1, 1, 0, 2, Q("15.6 mm")))
sketch14.addConstraint(Sketcher.Constraint("DistanceX", -1, 1, 0, 2, Q("10.16 mm")))
pocket9 = doc.addObject("PartDesign::Pocket", "Pocket008")
body.addObject(pocket9)
pocket9.Profile = sketch14
pocket9.Length = 10
pocket9.Reversed = True

sketch15 = doc.addObject("Sketcher::SketchObject", "Sketch014")
body.addObject(sketch15)
sketch15.AttachmentSupport = (doc.YZ_Plane, [""])
sketch15.MapMode = "FlatFace"
sketch15.AttachmentOffset = App.Placement(V(0, 0, -52.2), App.Rotation())
add_polygon(sketch15, [(-5.3, 15.6), (0, 15.6), (0, 18.1), (2, 18.1), (2, 15.6), (5.3, 15.6), (5.3, -42.4), (-5.3, -42.4)])
sketch15.addConstraint(Sketcher.Constraint("Horizontal", 0))
sketch15.addConstraint(Sketcher.Constraint("Vertical", 1))
sketch15.addConstraint(Sketcher.Constraint("Horizontal", 2))
sketch15.addConstraint(Sketcher.Constraint("Vertical", 3))
sketch15.addConstraint(Sketcher.Constraint("Horizontal", 4))
sketch15.addConstraint(Sketcher.Constraint("Vertical", 5))
sketch15.addConstraint(Sketcher.Constraint("Horizontal", 6))
sketch15.addConstraint(Sketcher.Constraint("Vertical", 7))
sketch15.addConstraint(Sketcher.Constraint("Symmetric", 4, 2, 7, 2, -2))
sketch15.addConstraint(Sketcher.Constraint("PointOnObject", 0, 2, -2))
sketch15.addConstraint(Sketcher.Constraint("DistanceX", 2, 1, 2, 2, Q("2 mm")))
sketch15.addConstraint(Sketcher.Constraint("DistanceY", 5, 2, 5, 1, Q("58 mm")))
sketch15.addConstraint(Sketcher.Constraint("DistanceX", 0, 1, 0, 2, Q("5.3 mm")))
sketch15.addConstraint(Sketcher.Constraint("DistanceY", 1, 1, 1, 2, Q("2.5 mm")))
sketch15.addConstraint(Sketcher.Constraint("DistanceY", -1, 1, 0, 2, Q("15.6 mm")))
pocket10 = doc.addObject("PartDesign::Pocket", "Pocket009")
body.addObject(pocket10)
pocket10.Profile = sketch15
pocket10.Length = 10
pocket10.Reversed = True

sketch16 = doc.addObject("Sketcher::SketchObject", "Sketch015")
body.addObject(sketch16)
sketch16.AttachmentSupport = (doc.YZ_Plane, [""])
sketch16.MapMode = "FlatFace"
sketch16.AttachmentOffset = App.Placement(V(0, 0, -52.2), App.Rotation())
add_polygon(sketch16, [(-15.5, 15.6), (-10.2, 15.6), (-10.2, 18.1), (-8.2, 18.1), (-8.2, 15.6), (-4.9, 15.6), (-4.9, -42.4), (-15.5, -42.4)])
sketch16.addConstraint(Sketcher.Constraint("Horizontal", 0))
sketch16.addConstraint(Sketcher.Constraint("Vertical", 1))
sketch16.addConstraint(Sketcher.Constraint("Horizontal", 2))
sketch16.addConstraint(Sketcher.Constraint("Vertical", 3))
sketch16.addConstraint(Sketcher.Constraint("Horizontal", 4))
sketch16.addConstraint(Sketcher.Constraint("Vertical", 5))
sketch16.addConstraint(Sketcher.Constraint("Horizontal", 6))
sketch16.addConstraint(Sketcher.Constraint("Vertical", 7))
sketch16.addConstraint(Sketcher.Constraint("Horizontal", 0, 2, 3, 2))
sketch16.addConstraint(Sketcher.Constraint("DistanceX", 2, 1, 2, 2, Q("2 mm")))
sketch16.addConstraint(Sketcher.Constraint("DistanceY", 5, 2, 5, 1, Q("58 mm")))
sketch16.addConstraint(Sketcher.Constraint("DistanceX", 0, 1, 0, 2, Q("5.3 mm")))
sketch16.addConstraint(Sketcher.Constraint("DistanceX", 4, 1, 4, 2, Q("3.3 mm")))
sketch16.addConstraint(Sketcher.Constraint("DistanceY", 1, 1, 1, 2, Q("2.5 mm")))
sketch16.addConstraint(Sketcher.Constraint("DistanceY", -1, 1, 0, 2, Q("15.6 mm")))
sketch16.addConstraint(Sketcher.Constraint("DistanceX", 0, 2, -1, 1, Q("10.16 mm")))
pocket11 = doc.addObject("PartDesign::Pocket", "Pocket010")
body.addObject(pocket11)
pocket11.Profile = sketch16
pocket11.Length = 10
pocket11.Reversed = True

sketch17 = doc.addObject("Sketcher::SketchObject", "Sketch016")
body.addObject(sketch17)
sketch17.AttachmentSupport = (doc.YZ_Plane, [""])
sketch17.MapMode = "FlatFace"
sketch17.AttachmentOffset = App.Placement(V(0, 0, -52.2), App.Rotation())
add_polygon(sketch17, [(-25.6, 15.6), (-20.3, 15.6), (-20.3, 18.1), (-18.3, 18.1), (-18.3, 15.6), (-15, 15.6), (-15, -42.4), (-25.6, -42.4)])
sketch17.addConstraint(Sketcher.Constraint("Horizontal", 0))
sketch17.addConstraint(Sketcher.Constraint("Vertical", 1))
sketch17.addConstraint(Sketcher.Constraint("Horizontal", 2))
sketch17.addConstraint(Sketcher.Constraint("Vertical", 3))
sketch17.addConstraint(Sketcher.Constraint("Horizontal", 4))
sketch17.addConstraint(Sketcher.Constraint("Vertical", 5))
sketch17.addConstraint(Sketcher.Constraint("Horizontal", 6))
sketch17.addConstraint(Sketcher.Constraint("Vertical", 7))
sketch17.addConstraint(Sketcher.Constraint("Horizontal", 0, 2, 3, 2))
sketch17.addConstraint(Sketcher.Constraint("DistanceX", 2, 1, 2, 2, Q("2 mm")))
sketch17.addConstraint(Sketcher.Constraint("DistanceY", 5, 2, 5, 1, Q("58 mm")))
sketch17.addConstraint(Sketcher.Constraint("DistanceX", 0, 1, 0, 2, Q("5.3 mm")))
sketch17.addConstraint(Sketcher.Constraint("DistanceX", 4, 1, 4, 2, Q("3.3 mm")))
sketch17.addConstraint(Sketcher.Constraint("DistanceY", 1, 1, 1, 2, Q("2.5 mm")))
sketch17.addConstraint(Sketcher.Constraint("DistanceY", -1, 1, 0, 2, Q("15.6 mm")))
sketch17.addConstraint(Sketcher.Constraint("DistanceX", 0, 2, -1, 1, Q("20.32 mm")))
pocket12 = doc.addObject("PartDesign::Pocket", "Pocket011")
body.addObject(pocket12)
pocket12.Profile = sketch17
pocket12.Length = 10
pocket12.Reversed = True

doc.recompute()
